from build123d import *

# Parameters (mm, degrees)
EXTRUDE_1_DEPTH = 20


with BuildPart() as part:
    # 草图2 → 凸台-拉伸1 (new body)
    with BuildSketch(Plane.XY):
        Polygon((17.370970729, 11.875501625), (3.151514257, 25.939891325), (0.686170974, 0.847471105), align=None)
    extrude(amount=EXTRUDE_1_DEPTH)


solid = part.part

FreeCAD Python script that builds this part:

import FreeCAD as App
import Part
import Sketcher

V = App.Vector


def add_polygon(sketch, points):
    """Adds a closed chain of lines whose ends are joined by coincident constraints."""
    first, n = sketch.GeometryCount, len(points)
    for a, b in zip(points, points[1:] + points[:1]):
        sketch.addGeometry(Part.LineSegment(App.Vector(*a, 0), App.Vector(*b, 0)), False)
    for i in range(n):
        sketch.addConstraint(Sketcher.Constraint("Coincident", first + i, 2, first + (i + 1) % n, 1))

doc = App.newDocument("Part")
body = doc.addObject("PartDesign::Body", "Body")

# Sketch on XY plane
sketch1 = doc.addObject("Sketcher::SketchObject", "Sketch")
body.addObject(sketch1)
sketch1.AttachmentSupport = (doc.XY_Plane, [""])
sketch1.MapMode = "FlatFace"
add_polygon(sketch1, [(17, 12), (3, 26), (1, 1)])  # lines 0-2
sketch1.addConstraint(Sketcher.Constraint("Equal", 0, 2))
sketch1.addConstraint(Sketcher.Constraint("Distance", 0, 20.0))
sketch1.addConstraint(Sketcher.Constraint("DistanceY", -1, 1, 2, 2, 11.875502))
sketch1.addConstraint(Sketcher.Constraint("DistanceX", 1, 2, 2, 2, 16.6848))
sketch1.addConstraint(Sketcher.Constraint("Distance", 1, 25.21324))
sketch1.addConstraint(Sketcher.Constraint("DistanceX", -1, 1, 1, 2, 0.686171))
pad1 = doc.addObject("PartDesign::Pad", "Pad")
body.addObject(pad1)
pad1.Profile = sketch1
pad1.Length = 20

doc.recompute()
